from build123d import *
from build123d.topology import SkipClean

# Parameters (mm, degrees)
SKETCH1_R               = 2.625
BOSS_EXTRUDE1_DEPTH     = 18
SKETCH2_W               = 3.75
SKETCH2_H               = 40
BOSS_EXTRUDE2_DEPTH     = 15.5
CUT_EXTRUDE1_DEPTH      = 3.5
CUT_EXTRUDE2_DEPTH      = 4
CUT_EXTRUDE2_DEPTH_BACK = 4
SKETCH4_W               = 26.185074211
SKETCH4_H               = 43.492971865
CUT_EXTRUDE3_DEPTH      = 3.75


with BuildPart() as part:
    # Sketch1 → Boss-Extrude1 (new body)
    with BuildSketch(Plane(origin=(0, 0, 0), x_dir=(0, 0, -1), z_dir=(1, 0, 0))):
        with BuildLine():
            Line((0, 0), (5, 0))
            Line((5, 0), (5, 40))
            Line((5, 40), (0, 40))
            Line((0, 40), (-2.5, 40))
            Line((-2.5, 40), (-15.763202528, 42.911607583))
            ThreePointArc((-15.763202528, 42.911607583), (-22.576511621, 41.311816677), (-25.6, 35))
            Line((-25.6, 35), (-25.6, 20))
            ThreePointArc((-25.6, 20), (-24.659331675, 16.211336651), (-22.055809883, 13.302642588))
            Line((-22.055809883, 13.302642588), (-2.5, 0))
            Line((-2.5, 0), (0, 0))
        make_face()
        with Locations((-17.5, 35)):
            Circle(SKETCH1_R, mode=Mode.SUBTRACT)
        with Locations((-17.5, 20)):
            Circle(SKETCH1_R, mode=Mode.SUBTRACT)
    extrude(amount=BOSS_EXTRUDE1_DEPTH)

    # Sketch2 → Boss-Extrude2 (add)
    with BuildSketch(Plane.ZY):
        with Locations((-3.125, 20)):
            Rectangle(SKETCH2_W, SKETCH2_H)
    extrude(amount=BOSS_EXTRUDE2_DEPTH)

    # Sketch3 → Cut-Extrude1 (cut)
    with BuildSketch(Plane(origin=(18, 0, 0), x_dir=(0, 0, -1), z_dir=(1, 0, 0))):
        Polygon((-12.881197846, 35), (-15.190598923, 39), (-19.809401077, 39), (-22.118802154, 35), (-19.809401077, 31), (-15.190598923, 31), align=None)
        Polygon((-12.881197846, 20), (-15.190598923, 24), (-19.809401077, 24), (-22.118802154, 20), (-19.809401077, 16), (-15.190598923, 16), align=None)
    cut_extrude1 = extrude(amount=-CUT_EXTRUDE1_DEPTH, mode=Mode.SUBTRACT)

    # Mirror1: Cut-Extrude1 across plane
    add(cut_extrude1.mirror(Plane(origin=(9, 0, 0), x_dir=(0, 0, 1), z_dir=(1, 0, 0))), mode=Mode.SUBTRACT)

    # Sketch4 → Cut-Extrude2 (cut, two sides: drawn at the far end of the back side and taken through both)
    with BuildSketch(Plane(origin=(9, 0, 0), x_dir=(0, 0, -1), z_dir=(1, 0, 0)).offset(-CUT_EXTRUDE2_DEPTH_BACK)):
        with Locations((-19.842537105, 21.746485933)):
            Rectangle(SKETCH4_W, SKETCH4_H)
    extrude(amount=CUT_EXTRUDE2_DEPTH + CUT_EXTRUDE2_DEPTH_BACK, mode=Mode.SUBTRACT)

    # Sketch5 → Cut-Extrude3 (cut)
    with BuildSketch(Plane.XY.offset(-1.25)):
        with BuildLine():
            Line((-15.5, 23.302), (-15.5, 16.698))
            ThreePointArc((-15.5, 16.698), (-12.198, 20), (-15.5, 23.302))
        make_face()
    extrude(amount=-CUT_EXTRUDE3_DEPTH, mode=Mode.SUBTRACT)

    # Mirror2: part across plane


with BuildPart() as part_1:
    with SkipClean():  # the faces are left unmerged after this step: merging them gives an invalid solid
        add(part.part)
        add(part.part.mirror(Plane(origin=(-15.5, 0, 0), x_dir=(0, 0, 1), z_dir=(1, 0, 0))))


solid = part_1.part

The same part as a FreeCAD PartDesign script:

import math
import FreeCAD as App
import Part
import Sketcher
Q = App.Units.Quantity


def add_polygon(sketch, points):
    """Adds a closed chain of lines whose ends are joined by coincident constraints."""
    first, n = sketch.GeometryCount, len(points)
    for a, b in zip(points, points[1:] + points[:1]):
        sketch.addGeometry(Part.LineSegment(App.Vector(*a, 0), App.Vector(*b, 0)), False)
    for i in range(n):
        sketch.addConstraint(Sketcher.Constraint("Coincident", first + i, 2, first + (i + 1) % n, 1))

doc = App.newDocument("Part")
body = doc.addObject("PartDesign::Body", "Body")

# Sketch on YZ plane
sketch1 = doc.addObject("Sketcher::SketchObject", "Sketch")
body.addObject(sketch1)
sketch1.AttachmentSupport = (doc.YZ_Plane, [""])
sketch1.MapMode = "FlatFace"
sketch1.addGeometry(Part.LineSegment(App.Vector(0, -5, 0), App.Vector(40, -5, 0)), False)
sketch1.addGeometry(Part.LineSegment(App.Vector(40, -5, 0), App.Vector(40, 2.5, 0)), False)
sketch1.addGeometry(Part.LineSegment(App.Vector(40, 2.5, 0), App.Vector(42.9, 15.8, 0)), False)
sketch1.addGeometry(Part.ArcOfCircle(Part.Circle(App.Vector(35, 17.5, 0), App.Vector(0, 0, 1), 8.1), math.radians(-12), math.radians(90)), False)
sketch1.addGeometry(Part.LineSegment(App.Vector(35, 25.6, 0), App.Vector(20, 25.6, 0)), False)
sketch1.addGeometry(Part.ArcOfCircle(Part.Circle(App.Vector(20, 17.5, 0), App.Vector(0, 0, 1), 8.1), math.radians(90), math.radians(146)), False)
sketch1.addGeometry(Part.LineSegment(App.Vector(13.3, 22.1, 0), App.Vector(0, 2.5, 0)), False)
sketch1.addGeometry(Part.LineSegment(App.Vector(0, 2.5, 0), App.Vector(0, -5, 0)), False)
sketch1.addGeometry(Part.Circle(App.Vector(20, 17.5, 0), App.Vector(0, 0, 1), 2.6), False)
sketch1.addGeometry(Part.Circle(App.Vector(35, 17.5, 0), App.Vector(0, 0, 1), 2.6), False)
sketch1.addConstraint(Sketcher.Constraint("Coincident", 0, 2, 1, 1))
sketch1.addConstraint(Sketcher.Constraint("Coincident", 1, 2, 2, 1))
sketch1.addConstraint(Sketcher.Constraint("Tangent", 2, 2, 3, 1))
sketch1.addConstraint(Sketcher.Constraint("Tangent", 3, 2, 4, 1))
sketch1.addConstraint(Sketcher.Constraint("Tangent", 4, 2, 5, 1))
sketch1.addConstraint(Sketcher.Constraint("Tangent", 5, 2, 6, 1))
sketch1.addConstraint(Sketcher.Constraint("Coincident", 6, 2, 7, 1))
sketch1.addConstraint(Sketcher.Constraint("Coincident", 7, 2, 0, 1))
sketch1.addConstraint(Sketcher.Constraint("Horizontal", 0))
sketch1.addConstraint(Sketcher.Constraint("Vertical", 1))
sketch1.addConstraint(Sketcher.Constraint("Horizontal", 4))
sketch1.addConstraint(Sketcher.Constraint("Vertical", 7))
sketch1.addConstraint(Sketcher.Constraint("Coincident", 8, 3, 5, 3))
sketch1.addConstraint(Sketcher.Constraint("Coincident", 9, 3, 3, 3))
sketch1.addConstraint(Sketcher.Constraint("Equal", 3, 5))
sketch1.addConstraint(Sketcher.Constraint("Equal", 8, 9))
sketch1.addConstraint(Sketcher.Constraint("PointOnObject", 6, 2, -2))
sketch1.addConstraint(Sketcher.Constraint("Horizontal", 1, 2, 6, 2))
sketch1.addConstraint(Sketcher.Constraint("Radius", 3, Q("8.1 mm")))
sketch1.addConstraint(Sketcher.Constraint("Diameter", 8, Q("5.25 mm")))
sketch1.addConstraint(Sketcher.Constraint("DistanceX", 0, 1, 0, 2, Q("40 mm")))
sketch1.addConstraint(Sketcher.Constraint("DistanceX", 4, 2, 4, 1, Q("15 mm")))
sketch1.addConstraint(Sketcher.Constraint("DistanceY", 1, 1, 1, 2, Q("7.5 mm")))
sketch1.addConstraint(Sketcher.Constraint("DistanceX", -1, 1, 3, 3, Q("35 mm")))
sketch1.addConstraint(Sketcher.Constraint("DistanceY", 0, 2, -1, 1, Q("5 mm")))
sketch1.addConstraint(Sketcher.Constraint("DistanceY", 1, 2, 3, 3, Q("15 mm")))
pad1 = doc.addObject("PartDesign::Pad", "Pad")
body.addObject(pad1)
pad1.Profile = sketch1
pad1.Length = 18

# Sketch on YZ plane
sketch2 = doc.addObject("Sketcher::SketchObject", "Sketch001")
body.addObject(sketch2)
sketch2.AttachmentSupport = (doc.YZ_Plane, [""])
sketch2.MapMode = "FlatFace"
add_polygon(sketch2, [(40, -5), (0, -5), (0, -1.2), (40, -1.2)])  # lines 0-3
sketch2.addConstraint(Sketcher.Constraint("Horizontal", 0))
sketch2.addConstraint(Sketcher.Constraint("Vertical", 1))
sketch2.addConstraint(Sketcher.Constraint("Horizontal", 2))
sketch2.addConstraint(Sketcher.Constraint("Vertical", 3))
sketch2.addConstraint(Sketcher.Constraint("PointOnObject", 0, 2, -2))
sketch2.addConstraint(Sketcher.Constraint("DistanceX", 0, 2, 0, 1, Q("40 mm")))
sketch2.addConstraint(Sketcher.Constraint("DistanceY", 0, 2, -1, 1, Q("5 mm")))
sketch2.addConstraint(Sketcher.Constraint("DistanceY", 1, 1, 1, 2, Q("3.75 mm")))
pad2 = doc.addObject("PartDesign::Pad", "Pad001")
body.addObject(pad2)
pad2.Profile = sketch2
pad2.Length = 15.5
pad2.Reversed = True

# Sketch on YZ plane
sketch3 = doc.addObject("Sketcher::SketchObject", "Sketch002")
body.addObject(sketch3)
sketch3.AttachmentSupport = (doc.YZ_Plane, [""])
sketch3.MapMode = "FlatFace"
sketch3.AttachmentOffset = App.Placement(App.Vector(0, 0, 18), App.Rotation())
add_polygon(sketch3, [(35, 12.9), (39, 15.2), (39, 19.8), (35, 22.1), (31, 19.8), (31, 15.2)])  # lines 0-5
add_polygon(sketch3, [(20, 12.9), (24, 15.2), (24, 19.8), (20, 22.1), (16, 19.8), (16, 15.2)])  # lines 6-11
sketch3.addConstraint(Sketcher.Constraint("Vertical", 1))
sketch3.addConstraint(Sketcher.Constraint("Vertical", 4))
sketch3.addConstraint(Sketcher.Constraint("Vertical", 7))
sketch3.addConstraint(Sketcher.Constraint("Vertical", 10))
sketch3.addConstraint(Sketcher.Constraint("Parallel", 0, 3))
sketch3.addConstraint(Sketcher.Constraint("Parallel", 2, 5))
sketch3.addConstraint(Sketcher.Constraint("Parallel", 3, 6))
sketch3.addConstraint(Sketcher.Constraint("Parallel", 5, 8))
sketch3.addConstraint(Sketcher.Constraint("Parallel", 6, 9))
sketch3.addConstraint(Sketcher.Constraint("Parallel", 8, 11))
sketch3.addConstraint(Sketcher.Constraint("Horizontal", 1, 2, 3, 2))
sketch3.addConstraint(Sketcher.Constraint("Horizontal", 0, 2, 4, 2))
sketch3.addConstraint(Sketcher.Constraint("Horizontal", 4, 2, 6, 2))
sketch3.addConstraint(Sketcher.Constraint("Horizontal", 3, 2, 7, 2))
sketch3.addConstraint(Sketcher.Constraint("Horizontal", 2, 2, 8, 2))
sketch3.addConstraint(Sketcher.Constraint("Horizontal", 7, 2, 9, 2))
sketch3.addConstraint(Sketcher.Constraint("Horizontal", 6, 2, 10, 2))
sketch3.addConstraint(Sketcher.Constraint("Vertical", 2, 2, 5, 2))
sketch3.addConstraint(Sketcher.Constraint("Angle", 0, Q("30 deg")))
sketch3.addConstraint(Sketcher.Constraint("DistanceX", -1, 1, 0, 2, Q("39 mm")))
sketch3.addConstraint(Sketcher.Constraint("DistanceX", -1, 1, 2, 2, Q("35 mm")))
sketch3.addConstraint(Sketcher.Constraint("DistanceX", -1, 1, 6, 2, Q("24 mm")))
sketch3.addConstraint(Sketcher.Constraint("DistanceY", -1, 1, 0, 2, Q("15.190599 mm")))
sketch3.addConstraint(Sketcher.Constraint("DistanceY", -1, 1, 1, 2, Q("19.809401 mm")))
pocket1 = doc.addObject("PartDesign::Pocket", "Pocket")
body.addObject(pocket1)
pocket1.Profile = sketch3
pocket1.Length = 3.5
doc.recompute()

datumplane = doc.addObject("PartDesign::Plane", "DatumPlane")
body.addObject(datumplane)
datumplane.AttachmentSupport = (doc.YZ_Plane, [""])
datumplane.MapMode = "FlatFace"
datumplane.AttachmentOffset = App.Placement(App.Vector(0, 0, 9), App.Rotation())
mirrored = doc.addObject("PartDesign::Mirrored", "Mirrored")
body.addObject(mirrored)
mirrored.Originals = [pocket1]
mirrored.MirrorPlane = (datumplane, [""])
body.Tip = mirrored

# Sketch on YZ plane
sketch4 = doc.addObject("Sketcher::SketchObject", "Sketch003")
body.addObject(sketch4)
sketch4.AttachmentSupport = (doc.YZ_Plane, [""])
sketch4.MapMode = "FlatFace"
sketch4.AttachmentOffset = App.Placement(App.Vector(0, 0, 9), App.Rotation())
add_polygon(sketch4, [(43, 33), (0, 33), (0, 7), (43, 7)])  # lines 0-3
sketch4.addConstraint(Sketcher.Constraint("Horizontal", 0))
sketch4.addConstraint(Sketcher.Constraint("Vertical", 1))
sketch4.addConstraint(Sketcher.Constraint("Horizontal", 2))
sketch4.addConstraint(Sketcher.Constraint("Vertical", 3))
sketch4.addConstraint(Sketcher.Constraint("PointOnObject", 0, 2, -2))
sketch4.addConstraint(Sketcher.Constraint("DistanceY", -1, 1, 1, 2, Q("6.75 mm")))
sketch4.addConstraint(Sketcher.Constraint("DistanceX", 0, 2, 0, 1, Q("43.492972 mm")))
sketch4.addConstraint(Sketcher.Constraint("DistanceY", 1, 2, 1, 1, Q("26.185074 mm")))
pocket2 = doc.addObject("PartDesign::Pocket", "Pocket001")
body.addObject(pocket2)
pocket2.Profile = sketch4
pocket2.Type = "TwoLengths"
pocket2.Length = 4
pocket2.Length2 = 4
pocket2.Reversed = True

# Sketch on XY plane
sketch5 = doc.addObject("Sketcher::SketchObject", "Sketch004")
body.addObject(sketch5)
sketch5.AttachmentSupport = (doc.XY_Plane, [""])
sketch5.MapMode = "FlatFace"
sketch5.AttachmentOffset = App.Placement(App.Vector(0, 0, -1.25), App.Rotation())
sketch5.addGeometry(Part.LineSegment(App.Vector(-15.5, 23.3, 0), App.Vector(-15.5, 16.7, 0)), False)
sketch5.addGeometry(Part.ArcOfCircle(Part.Circle(App.Vector(-15.5, 20, 0), App.Vector(0, 0, 1), 3.3), math.radians(-90), math.radians(90)), False)
sketch5.addConstraint(Sketcher.Constraint("Coincident", 0, 1, 1, 2))
sketch5.addConstraint(Sketcher.Constraint("Coincident", 1, 1, 0, 2))
sketch5.addConstraint(Sketcher.Constraint("Vertical", 0))
sketch5.addConstraint(Sketcher.Constraint("Vertical", 1, 3, 0, 1))
sketch5.addConstraint(Sketcher.Constraint("DistanceY", -1, 1, 1, 3, Q("20 mm")))
sketch5.addConstraint(Sketcher.Constraint("Radius", 1, Q("3.302 mm")))
sketch5.addConstraint(Sketcher.Constraint("DistanceX", 1, 3, -1, 1, Q("15.5 mm")))
pocket3 = doc.addObject("PartDesign::Pocket", "Pocket002")
body.addObject(pocket3)
pocket3.Profile = sketch5
pocket3.Length = 3.75
body2 = doc.addObject("PartDesign::Body", "Body001")
doc.recompute()

body2.BaseFeature = body
doc.recompute()

mirroring = doc.addObject("Part::Mirroring", "Mirroring")
mirroring.Source = body
mirroring.Base = App.Vector(-15.5, 0, 0)
mirroring.Normal = App.Vector(1, 0, 0)
body3 = doc.addObject("PartDesign::Body", "Body002")
body3.BaseFeature = mirroring
boolean = doc.addObject("PartDesign::Boolean", "Boolean")
body2.addObject(boolean)
boolean.Type = "Fuse"
boolean.addObjects([body3])
doc.recompute()
mirroring.Visibility = False

doc.recompute()
